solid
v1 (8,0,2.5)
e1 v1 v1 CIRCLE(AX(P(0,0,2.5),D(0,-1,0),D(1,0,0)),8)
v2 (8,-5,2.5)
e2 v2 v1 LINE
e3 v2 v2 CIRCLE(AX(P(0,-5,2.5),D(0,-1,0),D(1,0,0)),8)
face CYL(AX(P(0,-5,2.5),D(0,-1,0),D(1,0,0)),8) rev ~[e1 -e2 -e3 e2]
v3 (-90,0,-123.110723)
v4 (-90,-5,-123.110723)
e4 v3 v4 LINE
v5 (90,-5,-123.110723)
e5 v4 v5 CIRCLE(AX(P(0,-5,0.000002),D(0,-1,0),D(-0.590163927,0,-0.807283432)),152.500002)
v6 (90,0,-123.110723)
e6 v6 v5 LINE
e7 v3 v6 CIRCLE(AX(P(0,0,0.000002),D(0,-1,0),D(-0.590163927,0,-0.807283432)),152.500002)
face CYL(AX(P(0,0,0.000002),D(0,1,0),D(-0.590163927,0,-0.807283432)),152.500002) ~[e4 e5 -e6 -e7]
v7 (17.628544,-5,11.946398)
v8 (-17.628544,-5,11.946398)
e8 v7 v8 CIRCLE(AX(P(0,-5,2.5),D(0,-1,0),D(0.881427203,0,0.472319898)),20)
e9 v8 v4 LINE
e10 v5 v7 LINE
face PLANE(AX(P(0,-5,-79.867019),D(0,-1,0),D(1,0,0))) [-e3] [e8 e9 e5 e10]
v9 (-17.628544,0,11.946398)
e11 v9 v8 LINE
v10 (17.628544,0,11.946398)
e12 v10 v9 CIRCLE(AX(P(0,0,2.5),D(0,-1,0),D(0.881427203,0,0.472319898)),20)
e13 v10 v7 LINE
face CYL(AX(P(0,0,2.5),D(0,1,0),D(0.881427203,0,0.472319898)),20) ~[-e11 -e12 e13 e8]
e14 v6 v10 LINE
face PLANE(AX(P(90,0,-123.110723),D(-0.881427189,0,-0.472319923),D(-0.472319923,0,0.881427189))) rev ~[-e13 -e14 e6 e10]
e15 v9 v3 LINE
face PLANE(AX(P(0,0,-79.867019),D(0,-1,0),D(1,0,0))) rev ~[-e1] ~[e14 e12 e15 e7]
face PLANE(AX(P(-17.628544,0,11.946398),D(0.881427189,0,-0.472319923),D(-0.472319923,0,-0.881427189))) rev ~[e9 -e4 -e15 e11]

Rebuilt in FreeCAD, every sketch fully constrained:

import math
import FreeCAD as App
import Part
import Sketcher
from FreeCAD import Vector

doc = App.newDocument("Part")
params = doc.addObject("Spreadsheet::Sheet", "Params")
for row, (alias, value) in enumerate([
    ("sketch1_radius", "20 mm"),
    ("sketch1_radius2", "152.500002 mm"),
    ("pad1_length", "5 mm"),
    ("sketch2_diameter", "16 mm"),
], start=1):
    params.set(f"A{row}", alias)
    params.set(f"B{row}", "=" + value)
    params.setAlias(f"B{row}", alias)

body = doc.addObject("PartDesign::Body", "Body")

sketch1 = doc.addObject("Sketcher::SketchObject", "Sketch")
body.addObject(sketch1)
sketch1.AttachmentSupport = (doc.XZ_Plane, [""])
sketch1.MapMode = "FlatFace"
sketch1.addGeometry([
    Part.LineSegment(Vector(90, -123, 0), Vector(18, 12, 0)),
    Part.ArcOfCircle(Part.Circle(Vector(0, 3, 0), Vector(0, 0, 1), 20), math.radians(28), math.radians(152)),
    Part.LineSegment(Vector(-18, 12, 0), Vector(-90, -123, 0)),
    Part.ArcOfCircle(Part.Circle(Vector(0, 0, 0), Vector(0, 0, 1), 153), math.radians(-126), math.radians(-54)),
], False)
sketch1.addConstraint([
    Sketcher.Constraint("Tangent", 0, 2, 1, 1),
    Sketcher.Constraint("Tangent", 1, 2, 2, 1),
    Sketcher.Constraint("Coincident", 2, 2, 3, 1),
    Sketcher.Constraint("Coincident", 3, 2, 0, 1),
    Sketcher.Constraint("Coincident", 3, 3, -1, 1),
    Sketcher.Constraint("Symmetric", 0, 2, 1, 2, -2),
    Sketcher.Constraint("Radius", 1, 20.0),
    Sketcher.Constraint("Radius", 3, 152.500002),
    Sketcher.Constraint("DistanceX", 2, 2, -1, 1, 90.0),
    Sketcher.Constraint("DistanceY", -1, 1, 1, 3, 2.5),
])
sketch1.setExpression("Constraints[6]", "Params.sketch1_radius")
sketch1.setExpression("Constraints[7]", "Params.sketch1_radius2")
pad1 = doc.addObject("PartDesign::Pad", "Pad")
body.addObject(pad1)
pad1.Profile = sketch1
pad1.setExpression("Length", "Params.pad1_length")

sketch2 = doc.addObject("Sketcher::SketchObject", "Sketch001")
body.addObject(sketch2)
sketch2.AttachmentSupport = (doc.XZ_Plane, [""])
sketch2.MapMode = "FlatFace"
sketch2.AttachmentOffset = App.Placement(Vector(0, 0, 5), App.Rotation())
sketch2.addGeometry(Part.Circle(Vector(0, 2, 0), Vector(0, 0, 1), 8), False)
sketch2.addConstraint([
    Sketcher.Constraint("PointOnObject", 0, 3, -2),
    Sketcher.Constraint("Diameter", 0, 16.0),
    Sketcher.Constraint("DistanceY", -1, 1, 0, 3, 2.5),
])
sketch2.setExpression("Constraints[1]", "Params.sketch2_diameter")
pocket1 = doc.addObject("PartDesign::Pocket", "Pocket")
body.addObject(pocket1)
pocket1.Profile = sketch2
pocket1.Type = "ThroughAll"

doc.recompute()
